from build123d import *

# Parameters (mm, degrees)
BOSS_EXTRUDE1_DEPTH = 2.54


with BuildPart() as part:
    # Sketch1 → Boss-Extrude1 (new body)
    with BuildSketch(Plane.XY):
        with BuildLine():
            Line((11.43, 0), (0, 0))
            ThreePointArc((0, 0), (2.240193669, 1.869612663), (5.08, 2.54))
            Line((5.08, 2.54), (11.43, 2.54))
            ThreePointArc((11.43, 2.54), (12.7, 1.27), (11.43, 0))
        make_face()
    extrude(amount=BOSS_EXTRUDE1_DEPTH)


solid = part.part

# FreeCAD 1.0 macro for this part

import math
import FreeCAD as App
import Part
import Sketcher
Q = App.Units.Quantity

doc = App.newDocument("Part")
body = doc.addObject("PartDesign::Body", "Body")

# Sketch on XY plane
sketch1 = body.newObject("Sketcher::SketchObject", "Sketch")
sketch1.AttachmentSupport = (doc.getObject("XY_Plane"), [""])
sketch1.MapMode = "FlatFace"
sketch1.addGeometry(Part.LineSegment(App.Vector(0, 0, 0), App.Vector(11.4, 0, 0)), False)
sketch1.addGeometry(Part.ArcOfCircle(Part.Circle(App.Vector(11.4, 1.3, 0), App.Vector(0, 0, 1), 1.3), math.radians(-90), math.radians(90)), False)
sketch1.addGeometry(Part.LineSegment(App.Vector(11.4, 2.5, 0), App.Vector(5.1, 2.5, 0)), False)
sketch1.addGeometry(Part.ArcOfCircle(Part.Circle(App.Vector(5.1, -3.8, 0), App.Vector(0, 0, 1), 6.3), math.radians(90), math.radians(143)), False)
sketch1.addConstraint(Sketcher.Constraint("Tangent", 0, 2, 1, 1))
sketch1.addConstraint(Sketcher.Constraint("Tangent", 1, 2, 2, 1))
sketch1.addConstraint(Sketcher.Constraint("Tangent", 2, 2, 3, 1))
sketch1.addConstraint(Sketcher.Constraint("Coincident", 3, 2, 0, 1))
sketch1.addConstraint(Sketcher.Constraint("Horizontal", 0))
sketch1.addConstraint(Sketcher.Constraint("Horizontal", 2))
sketch1.addConstraint(Sketcher.Constraint("Coincident", 3, 2, -1, 1))
sketch1.addConstraint(Sketcher.Constraint("Radius", 1, Q("0.05 in")))
sketch1.addConstraint(Sketcher.Constraint("Radius", 3, Q("0.25 in")))
sketch1.addConstraint(Sketcher.Constraint("DistanceX", 0, 1, 0, 2, Q("0.45 in")))
pad1 = body.newObject("PartDesign::Pad", "Pad")
pad1.Profile = sketch1
pad1.Length = Q("0.1 in")

doc.recompute()
